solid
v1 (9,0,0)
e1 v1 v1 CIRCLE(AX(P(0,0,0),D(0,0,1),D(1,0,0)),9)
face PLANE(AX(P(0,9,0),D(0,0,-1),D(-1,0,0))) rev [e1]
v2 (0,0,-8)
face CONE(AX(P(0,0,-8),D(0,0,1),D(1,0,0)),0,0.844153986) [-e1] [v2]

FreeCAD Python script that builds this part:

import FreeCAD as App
import Part
import Sketcher
Q = App.Units.Quantity


def add_polygon(sketch, points):
    """Adds a closed chain of lines whose ends are joined by coincident constraints."""
    first, n = sketch.GeometryCount, len(points)
    for a, b in zip(points, points[1:] + points[:1]):
        sketch.addGeometry(Part.LineSegment(App.Vector(*a, 0), App.Vector(*b, 0)), False)
    for i in range(n):
        sketch.addConstraint(Sketcher.Constraint("Coincident", first + i, 2, first + (i + 1) % n, 1))

doc = App.newDocument("Part")
body = doc.addObject("PartDesign::Body", "Body")

# Sketch on YZ plane
sketch1 = body.newObject("Sketcher::SketchObject", "Sketch")
sketch1.AttachmentSupport = (doc.getObject("YZ_Plane"), [""])
sketch1.MapMode = "FlatFace"
add_polygon(sketch1, [(0, 0), (0, -8), (9, 0)])  # lines 0-2
sketch1.addConstraint([
    Sketcher.Constraint("Vertical", 0),
    Sketcher.Constraint("Horizontal", 2),
    Sketcher.Constraint("Coincident", 2, 2, -1, 1),
    Sketcher.Constraint("DistanceX", 2, 2, 2, 1, Q("9 mm")),
    Sketcher.Constraint("DistanceY", 0, 2, 0, 1, Q("8 mm")),
])
revolution = body.newObject("PartDesign::Revolution", "Revolution")
revolution.Profile = sketch1
revolution.ReferenceAxis = (sketch1, ["V_Axis"])
revolution.Angle = 360

doc.recompute()
